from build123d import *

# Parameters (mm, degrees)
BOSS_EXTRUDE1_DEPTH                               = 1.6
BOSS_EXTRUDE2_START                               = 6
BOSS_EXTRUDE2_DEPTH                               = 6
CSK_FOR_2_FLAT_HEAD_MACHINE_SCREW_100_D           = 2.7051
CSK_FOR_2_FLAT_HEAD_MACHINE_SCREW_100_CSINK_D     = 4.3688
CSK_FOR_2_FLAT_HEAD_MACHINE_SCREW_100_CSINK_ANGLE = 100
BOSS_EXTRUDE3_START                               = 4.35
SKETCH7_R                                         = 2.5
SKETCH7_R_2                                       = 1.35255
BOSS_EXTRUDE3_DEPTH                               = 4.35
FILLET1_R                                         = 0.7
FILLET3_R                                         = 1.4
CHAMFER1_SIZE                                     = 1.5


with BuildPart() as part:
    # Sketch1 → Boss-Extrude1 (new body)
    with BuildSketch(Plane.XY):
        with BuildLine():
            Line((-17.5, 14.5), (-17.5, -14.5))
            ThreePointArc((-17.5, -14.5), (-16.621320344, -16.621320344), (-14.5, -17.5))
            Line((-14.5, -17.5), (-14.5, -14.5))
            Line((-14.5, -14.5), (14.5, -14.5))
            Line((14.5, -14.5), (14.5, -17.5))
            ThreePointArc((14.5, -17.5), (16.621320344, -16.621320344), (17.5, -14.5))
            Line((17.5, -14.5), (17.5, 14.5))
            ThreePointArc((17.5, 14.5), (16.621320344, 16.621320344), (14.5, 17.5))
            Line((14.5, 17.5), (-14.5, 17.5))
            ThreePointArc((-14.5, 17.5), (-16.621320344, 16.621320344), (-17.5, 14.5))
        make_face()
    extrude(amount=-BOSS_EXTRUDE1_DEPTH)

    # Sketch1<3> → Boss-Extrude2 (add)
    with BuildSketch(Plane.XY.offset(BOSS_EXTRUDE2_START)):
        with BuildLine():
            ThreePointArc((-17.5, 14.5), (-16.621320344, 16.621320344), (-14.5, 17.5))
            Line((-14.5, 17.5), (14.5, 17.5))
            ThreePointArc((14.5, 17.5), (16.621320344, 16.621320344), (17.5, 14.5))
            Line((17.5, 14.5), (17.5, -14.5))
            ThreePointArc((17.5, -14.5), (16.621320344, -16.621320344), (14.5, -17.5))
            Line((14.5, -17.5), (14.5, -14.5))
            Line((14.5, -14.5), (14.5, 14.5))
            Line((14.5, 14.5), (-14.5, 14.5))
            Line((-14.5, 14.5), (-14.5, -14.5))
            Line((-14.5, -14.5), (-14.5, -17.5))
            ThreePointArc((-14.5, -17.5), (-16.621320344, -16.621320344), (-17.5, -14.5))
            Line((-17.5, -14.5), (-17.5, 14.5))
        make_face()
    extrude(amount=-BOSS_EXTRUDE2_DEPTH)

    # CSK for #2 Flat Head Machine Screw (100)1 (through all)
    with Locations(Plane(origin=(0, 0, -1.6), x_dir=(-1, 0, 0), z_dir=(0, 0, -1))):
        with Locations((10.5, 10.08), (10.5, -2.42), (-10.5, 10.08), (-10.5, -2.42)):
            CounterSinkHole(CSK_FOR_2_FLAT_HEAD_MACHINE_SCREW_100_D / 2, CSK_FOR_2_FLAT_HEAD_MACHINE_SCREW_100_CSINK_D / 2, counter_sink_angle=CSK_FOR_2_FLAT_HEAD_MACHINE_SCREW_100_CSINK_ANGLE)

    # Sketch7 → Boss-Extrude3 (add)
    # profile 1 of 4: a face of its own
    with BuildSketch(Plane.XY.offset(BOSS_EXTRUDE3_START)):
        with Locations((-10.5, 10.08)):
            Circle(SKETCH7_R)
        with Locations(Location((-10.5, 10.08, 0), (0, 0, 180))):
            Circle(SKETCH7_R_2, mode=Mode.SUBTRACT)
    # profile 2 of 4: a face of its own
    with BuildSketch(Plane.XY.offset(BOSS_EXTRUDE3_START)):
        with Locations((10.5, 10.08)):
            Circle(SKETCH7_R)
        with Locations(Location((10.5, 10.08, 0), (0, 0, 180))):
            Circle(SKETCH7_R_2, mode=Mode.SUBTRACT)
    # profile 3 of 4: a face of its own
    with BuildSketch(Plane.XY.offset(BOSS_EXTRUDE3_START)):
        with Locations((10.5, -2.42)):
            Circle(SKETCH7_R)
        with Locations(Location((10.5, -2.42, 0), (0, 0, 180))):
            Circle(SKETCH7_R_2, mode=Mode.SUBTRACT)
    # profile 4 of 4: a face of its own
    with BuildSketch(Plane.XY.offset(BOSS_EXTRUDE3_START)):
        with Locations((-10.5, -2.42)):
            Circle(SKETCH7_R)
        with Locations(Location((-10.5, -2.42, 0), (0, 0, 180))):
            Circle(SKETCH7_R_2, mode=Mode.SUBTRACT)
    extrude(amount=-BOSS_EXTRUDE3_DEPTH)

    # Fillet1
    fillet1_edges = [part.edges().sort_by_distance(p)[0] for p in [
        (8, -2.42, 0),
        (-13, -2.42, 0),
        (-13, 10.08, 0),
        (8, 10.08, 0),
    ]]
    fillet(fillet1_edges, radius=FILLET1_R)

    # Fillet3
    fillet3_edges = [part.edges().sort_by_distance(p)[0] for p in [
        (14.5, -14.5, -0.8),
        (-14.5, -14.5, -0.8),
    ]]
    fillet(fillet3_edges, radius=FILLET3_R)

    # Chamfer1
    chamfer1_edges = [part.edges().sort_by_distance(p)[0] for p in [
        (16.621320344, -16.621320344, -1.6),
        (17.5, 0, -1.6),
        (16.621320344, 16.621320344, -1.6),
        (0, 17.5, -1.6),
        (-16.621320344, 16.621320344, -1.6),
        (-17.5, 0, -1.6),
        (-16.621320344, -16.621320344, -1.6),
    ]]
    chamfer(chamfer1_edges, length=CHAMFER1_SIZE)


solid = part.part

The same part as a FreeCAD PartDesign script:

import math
import FreeCAD as App
import Part
import Sketcher
Q = App.Units.Quantity


def edges_at(feature, points):
    """Names of the edges that pass closest to the given points."""
    edges = feature.Shape.Edges
    near = lambda p: min(range(len(edges)), key=lambda i: edges[i].distToShape(Part.Vertex(*p))[0])
    return sorted({f"Edge{near(p) + 1}" for p in points})

doc = App.newDocument("Part")
body = doc.addObject("PartDesign::Body", "Body")

# Sketch on XY plane
sketch1 = doc.addObject("Sketcher::SketchObject", "Sketch")
body.addObject(sketch1)
sketch1.AttachmentSupport = (doc.XY_Plane, [""])
sketch1.MapMode = "FlatFace"
sketch1.addGeometry([
    Part.LineSegment(App.Vector(-17.5, 14.5, 0), App.Vector(-17.5, -14.5, 0)),  # 0
    Part.ArcOfCircle(Part.Circle(App.Vector(-14.5, -14.5, 0), App.Vector(0, 0, 1), 3), math.radians(180), math.radians(270)),  # 1
    Part.LineSegment(App.Vector(-14.5, -17.5, 0), App.Vector(-14.5, -14.5, 0)),  # 2
    Part.LineSegment(App.Vector(-14.5, -14.5, 0), App.Vector(14.5, -14.5, 0)),  # 3
    Part.LineSegment(App.Vector(14.5, -14.5, 0), App.Vector(14.5, -17.5, 0)),  # 4
    Part.ArcOfCircle(Part.Circle(App.Vector(14.5, -14.5, 0), App.Vector(0, 0, 1), 3), math.radians(-90), math.radians(0)),  # 5
    Part.LineSegment(App.Vector(17.5, -14.5, 0), App.Vector(17.5, 14.5, 0)),  # 6
    Part.ArcOfCircle(Part.Circle(App.Vector(14.5, 14.5, 0), App.Vector(0, 0, 1), 3), math.radians(0), math.radians(90)),  # 7
    Part.LineSegment(App.Vector(14.5, 17.5, 0), App.Vector(-14.5, 17.5, 0)),  # 8
    Part.ArcOfCircle(Part.Circle(App.Vector(-14.5, 14.5, 0), App.Vector(0, 0, 1), 3), math.radians(90), math.radians(180)),  # 9
], False)
sketch1.addConstraint([
    Sketcher.Constraint("Tangent", 0, 2, 1, 1),
    Sketcher.Constraint("Coincident", 1, 2, 2, 1),
    Sketcher.Constraint("Coincident", 2, 2, 3, 1),
    Sketcher.Constraint("Coincident", 3, 2, 4, 1),
    Sketcher.Constraint("Coincident", 4, 2, 5, 1),
    Sketcher.Constraint("Tangent", 5, 2, 6, 1),
    Sketcher.Constraint("Tangent", 6, 2, 7, 1),
    Sketcher.Constraint("Tangent", 7, 2, 8, 1),
    Sketcher.Constraint("Tangent", 8, 2, 9, 1),
    Sketcher.Constraint("Tangent", 9, 2, 0, 1),
    Sketcher.Constraint("Vertical", 0),
    Sketcher.Constraint("Vertical", 2),
    Sketcher.Constraint("Horizontal", 3),
    Sketcher.Constraint("Vertical", 4),
    Sketcher.Constraint("Vertical", 6),
    Sketcher.Constraint("Horizontal", 8),
    Sketcher.Constraint("Coincident", 2, 2, 1, 3),
    Sketcher.Constraint("Coincident", 3, 2, 5, 3),
    Sketcher.Constraint("Equal", 1, 5),
    Sketcher.Constraint("Equal", 5, 7),
    Sketcher.Constraint("Equal", 7, 9),
    Sketcher.Constraint("Symmetric", 1, 3, 7, 3, -1, 1),
    Sketcher.Constraint("Equal", 8, 0),
    Sketcher.Constraint("Radius", 1, Q("3 mm")),
    Sketcher.Constraint("DistanceX", 3, 1, 3, 2, Q("29 mm")),
])
pad1 = doc.addObject("PartDesign::Pad", "Pad")
body.addObject(pad1)
pad1.Profile = sketch1
pad1.Length = 1.6
pad1.Reversed = True

# Sketch on XY plane
sketch2 = doc.addObject("Sketcher::SketchObject", "Sketch001")
body.addObject(sketch2)
sketch2.AttachmentSupport = (doc.XY_Plane, [""])
sketch2.MapMode = "FlatFace"
sketch2.AttachmentOffset = App.Placement(App.Vector(0, 0, 6), App.Rotation())
sketch2.addGeometry([
    Part.ArcOfCircle(Part.Circle(App.Vector(-14.5, 14.5, 0), App.Vector(0, 0, 1), 3), math.radians(90), math.radians(180)),  # 0
    Part.LineSegment(App.Vector(-17.5, 14.5, 0), App.Vector(-17.5, -14.5, 0)),  # 1
    Part.ArcOfCircle(Part.Circle(App.Vector(-14.5, -14.5, 0), App.Vector(0, 0, 1), 3), math.radians(180), math.radians(270)),  # 2
    Part.LineSegment(App.Vector(-14.5, -17.5, 0), App.Vector(-14.5, 14.5, 0)),  # 3
    Part.LineSegment(App.Vector(-14.5, 14.5, 0), App.Vector(14.5, 14.5, 0)),  # 4
    Part.LineSegment(App.Vector(14.5, 14.5, 0), App.Vector(14.5, -17.5, 0)),  # 5
    Part.ArcOfCircle(Part.Circle(App.Vector(14.5, -14.5, 0), App.Vector(0, 0, 1), 3), math.radians(-90), math.radians(0)),  # 6
    Part.LineSegment(App.Vector(17.5, -14.5, 0), App.Vector(17.5, 14.5, 0)),  # 7
    Part.ArcOfCircle(Part.Circle(App.Vector(14.5, 14.5, 0), App.Vector(0, 0, 1), 3), math.radians(0), math.radians(90)),  # 8
    Part.LineSegment(App.Vector(14.5, 17.5, 0), App.Vector(-14.5, 17.5, 0)),  # 9
], False)
sketch2.addConstraint([
    Sketcher.Constraint("Tangent", 0, 2, 1, 1),
    Sketcher.Constraint("Tangent", 1, 2, 2, 1),
    Sketcher.Constraint("Coincident", 2, 2, 3, 1),
    Sketcher.Constraint("Coincident", 3, 2, 4, 1),
    Sketcher.Constraint("Coincident", 4, 2, 5, 1),
    Sketcher.Constraint("Coincident", 5, 2, 6, 1),
    Sketcher.Constraint("Tangent", 6, 2, 7, 1),
    Sketcher.Constraint("Tangent", 7, 2, 8, 1),
    Sketcher.Constraint("Tangent", 8, 2, 9, 1),
    Sketcher.Constraint("Tangent", 9, 2, 0, 1),
    Sketcher.Constraint("Vertical", 1),
    Sketcher.Constraint("Vertical", 3),
    Sketcher.Constraint("Horizontal", 4),
    Sketcher.Constraint("Vertical", 5),
    Sketcher.Constraint("Vertical", 7),
    Sketcher.Constraint("Horizontal", 9),
    Sketcher.Constraint("Coincident", 3, 2, 0, 3),
    Sketcher.Constraint("Coincident", 4, 2, 8, 3),
    Sketcher.Constraint("Equal", 0, 2),
    Sketcher.Constraint("Equal", 2, 6),
    Sketcher.Constraint("Symmetric", 0, 3, 6, 3, -1, 1),
    Sketcher.Constraint("Horizontal", 2, 3, 6, 3),
    Sketcher.Constraint("Equal", 9, 1),
    Sketcher.Constraint("Radius", 0, Q("3 mm")),
    Sketcher.Constraint("DistanceX", 4, 1, 4, 2, Q("29 mm")),
])
pad2 = doc.addObject("PartDesign::Pad", "Pad001")
body.addObject(pad2)
pad2.Profile = sketch2
pad2.Length = 6
pad2.Reversed = True

# Sketch on XY plane
sketch3 = doc.addObject("Sketcher::SketchObject", "Sketch002")
body.addObject(sketch3)
sketch3.AttachmentSupport = (doc.XY_Plane, [""])
sketch3.MapMode = "FlatFace"
sketch3.AttachmentOffset = App.Placement(App.Vector(0, 0, -1.6), App.Rotation())
sketch3.addGeometry([
    Part.Circle(App.Vector(-10.5, 10.08, 0), App.Vector(0, 0, 1), 1.35255),
    Part.Circle(App.Vector(-10.5, -2.42, 0), App.Vector(0, 0, 1), 1.35255),
    Part.Circle(App.Vector(10.5, 10.08, 0), App.Vector(0, 0, 1), 1.35255),
    Part.Circle(App.Vector(10.5, -2.42, 0), App.Vector(0, 0, 1), 1.35255),
], False)
sketch3.addConstraint([
    Sketcher.Constraint("Equal", 0, 1),
    Sketcher.Constraint("Equal", 1, 2),
    Sketcher.Constraint("Equal", 2, 3),
    Sketcher.Constraint("Symmetric", 0, 3, 2, 3, -2),
    Sketcher.Constraint("Symmetric", 1, 3, 3, 3, -2),
    Sketcher.Constraint("Vertical", 0, 3, 1, 3),
    Sketcher.Constraint("DistanceX", 0, 3, 2, 3, Q("21 mm")),
    Sketcher.Constraint("Diameter", 0, Q("2.7051 mm")),
    Sketcher.Constraint("DistanceY", 1, 3, 0, 3, Q("12.5 mm")),
    Sketcher.Constraint("DistanceY", -1, 1, 0, 3, Q("10.08 mm")),
])
doc.recompute()
hole = doc.addObject("PartDesign::Hole", "Hole")
body.addObject(hole)
hole.Profile = sketch3
hole.ThreadType = "None"
hole.Diameter = 2.7051
hole.DepthType = "ThroughAll"
hole.HoleCutType = "Countersink"
hole.HoleCutDiameter = 4.3688
hole.HoleCutCountersinkAngle = 100
hole.Reversed = True

# Sketch on XY plane
sketch4 = doc.addObject("Sketcher::SketchObject", "Sketch003")
body.addObject(sketch4)
sketch4.AttachmentSupport = (doc.XY_Plane, [""])
sketch4.MapMode = "FlatFace"
sketch4.AttachmentOffset = App.Placement(App.Vector(0, 0, 4.35), App.Rotation())
sketch4.addGeometry([
    Part.Circle(App.Vector(-10.5, 10.08, 0), App.Vector(0, 0, 1), 2.5),  # 0
    Part.Circle(App.Vector(-10.5, 10.08, 0), App.Vector(0, 0, 1), 1.35255),  # 1
    Part.Circle(App.Vector(10.5, 10.08, 0), App.Vector(0, 0, 1), 2.5),  # 2
    Part.Circle(App.Vector(10.5, 10.08, 0), App.Vector(0, 0, 1), 1.35255),  # 3
    Part.Circle(App.Vector(10.5, -2.42, 0), App.Vector(0, 0, 1), 2.5),  # 4
    Part.Circle(App.Vector(10.5, -2.42, 0), App.Vector(0, 0, 1), 1.35255),  # 5
    Part.Circle(App.Vector(-10.5, -2.42, 0), App.Vector(0, 0, 1), 2.5),  # 6
    Part.Circle(App.Vector(-10.5, -2.42, 0), App.Vector(0, 0, 1), 1.35255),  # 7
], False)
sketch4.addConstraint([
    Sketcher.Constraint("Coincident", 1, 3, 0, 3),
    Sketcher.Constraint("Coincident", 3, 3, 2, 3),
    Sketcher.Constraint("Coincident", 5, 3, 4, 3),
    Sketcher.Constraint("Coincident", 7, 3, 6, 3),
    Sketcher.Constraint("Equal", 0, 2),
    Sketcher.Constraint("Equal", 1, 3),
    Sketcher.Constraint("Equal", 2, 4),
    Sketcher.Constraint("Equal", 3, 5),
    Sketcher.Constraint("Equal", 4, 6),
    Sketcher.Constraint("Equal", 5, 7),
    Sketcher.Constraint("Symmetric", 0, 3, 2, 3, -2),
    Sketcher.Constraint("Symmetric", 4, 3, 6, 3, -2),
    Sketcher.Constraint("Vertical", 3, 3, 4, 3),
    Sketcher.Constraint("Diameter", 0, Q("5 mm")),
    Sketcher.Constraint("DistanceX", 0, 3, 2, 3, Q("21 mm")),
    Sketcher.Constraint("Diameter", 1, Q("2.7051 mm")),
    Sketcher.Constraint("DistanceY", 4, 3, 2, 3, Q("12.5 mm")),
    Sketcher.Constraint("DistanceY", -1, 1, 0, 3, Q("10.08 mm")),
])
pad3 = doc.addObject("PartDesign::Pad", "Pad002")
body.addObject(pad3)
pad3.Profile = sketch4
pad3.Length = 4.35
pad3.Reversed = True
doc.recompute()

fillet = doc.addObject("PartDesign::Fillet", "Fillet")
body.addObject(fillet)
fillet.Base = (pad3, edges_at(pad3, [
    (8, -2.42, 0),
    (-13, -2.42, 0),
    (-13, 10.08, 0),
    (8, 10.08, 0),
]))
fillet.Radius = 0.7
doc.recompute()

fillet2 = doc.addObject("PartDesign::Fillet", "Fillet001")
body.addObject(fillet2)
fillet2.Base = (fillet, edges_at(fillet, [(14.5, -14.5, -0.8), (-14.5, -14.5, -0.8)]))
fillet2.Radius = 1.4
doc.recompute()

chamfer = doc.addObject("PartDesign::Chamfer", "Chamfer")
body.addObject(chamfer)
chamfer.Base = (fillet2, edges_at(fillet2, [
    (16.621, -16.621, -1.6),
    (17.5, 0, -1.6),
    (16.621, 16.621, -1.6),
    (0, 17.5, -1.6),
    (-16.621, 16.621, -1.6),
    (-17.5, 0, -1.6),
    (-16.621, -16.621, -1.6),
]))
chamfer.Size = 1.5

doc.recompute()
